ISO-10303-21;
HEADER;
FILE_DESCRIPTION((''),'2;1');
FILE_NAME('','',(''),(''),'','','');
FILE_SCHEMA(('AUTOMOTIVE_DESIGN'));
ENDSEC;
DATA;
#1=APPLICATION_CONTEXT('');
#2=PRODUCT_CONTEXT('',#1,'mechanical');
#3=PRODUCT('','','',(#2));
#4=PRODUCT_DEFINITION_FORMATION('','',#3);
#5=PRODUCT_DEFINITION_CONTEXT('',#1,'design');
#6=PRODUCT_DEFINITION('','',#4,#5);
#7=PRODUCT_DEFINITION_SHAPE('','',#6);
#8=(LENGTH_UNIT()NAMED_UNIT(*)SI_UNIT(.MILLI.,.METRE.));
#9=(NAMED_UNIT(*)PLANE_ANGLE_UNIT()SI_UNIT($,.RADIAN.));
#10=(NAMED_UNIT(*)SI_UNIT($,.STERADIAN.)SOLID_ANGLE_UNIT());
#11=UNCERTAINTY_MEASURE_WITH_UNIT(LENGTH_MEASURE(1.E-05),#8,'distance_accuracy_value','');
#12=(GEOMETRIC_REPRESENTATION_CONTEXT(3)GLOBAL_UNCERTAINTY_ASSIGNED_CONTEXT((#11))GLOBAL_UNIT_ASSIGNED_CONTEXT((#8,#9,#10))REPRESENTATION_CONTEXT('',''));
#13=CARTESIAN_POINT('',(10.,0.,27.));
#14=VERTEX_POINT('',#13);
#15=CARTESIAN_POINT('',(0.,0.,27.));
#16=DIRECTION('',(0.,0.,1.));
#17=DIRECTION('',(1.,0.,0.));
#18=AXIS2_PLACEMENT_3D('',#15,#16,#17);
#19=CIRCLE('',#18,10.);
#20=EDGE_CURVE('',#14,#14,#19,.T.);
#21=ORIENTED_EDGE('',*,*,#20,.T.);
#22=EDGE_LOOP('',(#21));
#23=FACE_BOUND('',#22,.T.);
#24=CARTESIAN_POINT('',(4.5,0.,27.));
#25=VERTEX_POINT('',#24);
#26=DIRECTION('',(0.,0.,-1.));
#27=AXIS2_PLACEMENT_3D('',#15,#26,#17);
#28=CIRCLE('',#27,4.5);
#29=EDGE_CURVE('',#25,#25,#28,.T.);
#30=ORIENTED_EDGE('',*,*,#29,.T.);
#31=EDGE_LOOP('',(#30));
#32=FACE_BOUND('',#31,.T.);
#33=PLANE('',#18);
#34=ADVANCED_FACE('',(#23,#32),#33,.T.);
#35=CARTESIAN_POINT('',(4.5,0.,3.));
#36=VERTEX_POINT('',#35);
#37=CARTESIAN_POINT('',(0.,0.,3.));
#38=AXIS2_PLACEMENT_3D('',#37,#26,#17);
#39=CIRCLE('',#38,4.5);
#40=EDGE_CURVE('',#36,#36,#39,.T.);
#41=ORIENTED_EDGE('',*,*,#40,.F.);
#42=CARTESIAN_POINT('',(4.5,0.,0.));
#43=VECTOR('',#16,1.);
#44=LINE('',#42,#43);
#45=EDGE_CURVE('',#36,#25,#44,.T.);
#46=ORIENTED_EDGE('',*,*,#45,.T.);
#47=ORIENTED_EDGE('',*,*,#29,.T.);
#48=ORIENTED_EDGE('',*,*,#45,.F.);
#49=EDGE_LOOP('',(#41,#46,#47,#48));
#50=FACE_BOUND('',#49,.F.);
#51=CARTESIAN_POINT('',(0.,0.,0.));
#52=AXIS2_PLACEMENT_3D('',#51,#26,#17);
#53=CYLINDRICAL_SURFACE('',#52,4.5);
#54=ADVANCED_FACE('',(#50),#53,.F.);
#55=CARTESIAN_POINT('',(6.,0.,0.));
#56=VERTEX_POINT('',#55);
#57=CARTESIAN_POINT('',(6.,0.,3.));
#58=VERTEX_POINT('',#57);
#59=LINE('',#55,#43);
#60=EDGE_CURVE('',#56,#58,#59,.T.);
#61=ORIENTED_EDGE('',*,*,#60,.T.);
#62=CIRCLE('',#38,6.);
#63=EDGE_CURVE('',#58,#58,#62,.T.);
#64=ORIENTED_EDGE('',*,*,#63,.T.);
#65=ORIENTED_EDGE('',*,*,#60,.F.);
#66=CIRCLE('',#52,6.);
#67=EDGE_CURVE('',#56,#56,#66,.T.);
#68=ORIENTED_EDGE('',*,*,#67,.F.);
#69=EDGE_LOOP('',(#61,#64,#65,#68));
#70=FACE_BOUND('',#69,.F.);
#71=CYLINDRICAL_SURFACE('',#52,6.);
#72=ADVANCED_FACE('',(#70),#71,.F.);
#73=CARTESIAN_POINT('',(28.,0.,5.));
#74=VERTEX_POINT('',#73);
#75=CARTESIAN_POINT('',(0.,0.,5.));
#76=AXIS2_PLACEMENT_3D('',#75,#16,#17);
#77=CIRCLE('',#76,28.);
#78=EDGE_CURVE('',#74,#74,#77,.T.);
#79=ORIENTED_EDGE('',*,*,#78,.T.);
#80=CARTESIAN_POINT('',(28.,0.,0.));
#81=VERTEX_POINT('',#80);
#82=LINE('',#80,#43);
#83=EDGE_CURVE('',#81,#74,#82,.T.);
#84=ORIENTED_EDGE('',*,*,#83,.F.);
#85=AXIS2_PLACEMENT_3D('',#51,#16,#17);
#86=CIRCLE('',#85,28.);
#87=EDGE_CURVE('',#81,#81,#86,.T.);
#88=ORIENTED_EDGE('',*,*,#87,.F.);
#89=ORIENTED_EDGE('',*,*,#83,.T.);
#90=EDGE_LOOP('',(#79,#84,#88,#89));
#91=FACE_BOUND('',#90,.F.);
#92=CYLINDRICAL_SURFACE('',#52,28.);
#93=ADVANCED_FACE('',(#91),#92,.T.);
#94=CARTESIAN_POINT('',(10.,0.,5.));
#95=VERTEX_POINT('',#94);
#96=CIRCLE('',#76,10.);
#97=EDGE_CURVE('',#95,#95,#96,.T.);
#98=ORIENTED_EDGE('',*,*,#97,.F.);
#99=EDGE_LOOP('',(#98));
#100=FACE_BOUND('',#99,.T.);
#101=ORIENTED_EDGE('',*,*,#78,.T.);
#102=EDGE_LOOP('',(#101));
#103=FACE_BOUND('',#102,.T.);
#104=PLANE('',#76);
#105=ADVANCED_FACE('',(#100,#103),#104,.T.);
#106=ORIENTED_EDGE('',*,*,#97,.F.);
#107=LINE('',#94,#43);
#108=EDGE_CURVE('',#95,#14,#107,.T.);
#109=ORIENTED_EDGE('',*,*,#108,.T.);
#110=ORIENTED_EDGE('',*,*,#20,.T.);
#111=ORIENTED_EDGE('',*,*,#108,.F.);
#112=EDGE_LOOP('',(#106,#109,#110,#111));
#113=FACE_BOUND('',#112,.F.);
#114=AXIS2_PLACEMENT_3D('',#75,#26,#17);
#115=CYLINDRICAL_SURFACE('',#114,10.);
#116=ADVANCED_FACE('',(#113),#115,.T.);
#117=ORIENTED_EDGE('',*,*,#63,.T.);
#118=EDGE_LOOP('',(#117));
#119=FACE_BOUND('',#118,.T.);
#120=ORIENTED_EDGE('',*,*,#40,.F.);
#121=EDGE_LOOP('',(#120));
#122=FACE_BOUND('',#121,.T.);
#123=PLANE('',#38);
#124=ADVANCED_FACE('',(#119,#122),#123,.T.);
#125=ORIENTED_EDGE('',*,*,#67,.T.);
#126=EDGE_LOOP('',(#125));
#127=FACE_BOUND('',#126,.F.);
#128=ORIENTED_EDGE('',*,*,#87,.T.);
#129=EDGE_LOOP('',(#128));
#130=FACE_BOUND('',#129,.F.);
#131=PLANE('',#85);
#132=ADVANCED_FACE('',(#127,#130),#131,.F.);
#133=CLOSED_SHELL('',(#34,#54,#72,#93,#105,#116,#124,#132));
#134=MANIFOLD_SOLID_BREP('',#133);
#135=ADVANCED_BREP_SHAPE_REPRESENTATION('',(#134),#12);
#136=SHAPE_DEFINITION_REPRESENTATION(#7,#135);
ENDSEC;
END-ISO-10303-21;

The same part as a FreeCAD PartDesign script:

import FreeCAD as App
import Part
import Sketcher
Q = App.Units.Quantity

doc = App.newDocument("Part")
body = doc.addObject("PartDesign::Body", "Body")

# Sketch on XY plane
sketch1 = body.newObject("Sketcher::SketchObject", "Sketch")
sketch1.AttachmentSupport = (doc.getObject("XY_Plane"), [""])
sketch1.MapMode = "FlatFace"
sketch1.addGeometry(Part.Circle(App.Vector(0, 0, 0), App.Vector(0, 0, 1), 28), False)
sketch1.addConstraint([
    Sketcher.Constraint("Coincident", 0, 3, -1, 1),
    Sketcher.Constraint("Diameter", 0, Q("56 mm")),
])
pad1 = body.newObject("PartDesign::Pad", "Pad")
pad1.Profile = sketch1
pad1.Length = 5

# Sketch on XY plane
sketch2 = body.newObject("Sketcher::SketchObject", "Sketch001")
sketch2.AttachmentSupport = (doc.getObject("XY_Plane"), [""])
sketch2.MapMode = "FlatFace"
sketch2.AttachmentOffset = App.Placement(App.Vector(0, 0, 5), App.Rotation())
sketch2.addGeometry(Part.Circle(App.Vector(0, 0, 0), App.Vector(0, 0, 1), 10), False)
sketch2.addConstraint([
    Sketcher.Constraint("Coincident", 0, 3, -1, 1),
    Sketcher.Constraint("Diameter", 0, Q("20 mm")),
])
pad2 = body.newObject("PartDesign::Pad", "Pad001")
pad2.Profile = sketch2
pad2.Length = 22

# Sketch on XY plane
sketch3 = body.newObject("Sketcher::SketchObject", "Sketch002")
sketch3.AttachmentSupport = (doc.getObject("XY_Plane"), [""])
sketch3.MapMode = "FlatFace"
sketch3.addGeometry(Part.Circle(App.Vector(0, 0, 0), App.Vector(0, 0, 1), 6), False)
sketch3.addConstraint([
    Sketcher.Constraint("Coincident", 0, 3, -1, 1),
    Sketcher.Constraint("Diameter", 0, Q("12 mm")),
])
pocket1 = body.newObject("PartDesign::Pocket", "Pocket")
pocket1.Profile = sketch3
pocket1.Length = 3
pocket1.Reversed = True

# Sketch on XY plane
sketch4 = body.newObject("Sketcher::SketchObject", "Sketch003")
sketch4.AttachmentSupport = (doc.getObject("XY_Plane"), [""])
sketch4.MapMode = "FlatFace"
sketch4.addGeometry(Part.Circle(App.Vector(0, 0, 0), App.Vector(0, 0, 1), 4.5), False)
sketch4.addConstraint([
    Sketcher.Constraint("Coincident", 0, 3, -1, 1),
    Sketcher.Constraint("Diameter", 0, Q("9 mm")),
])
pocket2 = body.newObject("PartDesign::Pocket", "Pocket001")
pocket2.Profile = sketch4
pocket2.Length = 27
pocket2.Reversed = True

doc.recompute()
